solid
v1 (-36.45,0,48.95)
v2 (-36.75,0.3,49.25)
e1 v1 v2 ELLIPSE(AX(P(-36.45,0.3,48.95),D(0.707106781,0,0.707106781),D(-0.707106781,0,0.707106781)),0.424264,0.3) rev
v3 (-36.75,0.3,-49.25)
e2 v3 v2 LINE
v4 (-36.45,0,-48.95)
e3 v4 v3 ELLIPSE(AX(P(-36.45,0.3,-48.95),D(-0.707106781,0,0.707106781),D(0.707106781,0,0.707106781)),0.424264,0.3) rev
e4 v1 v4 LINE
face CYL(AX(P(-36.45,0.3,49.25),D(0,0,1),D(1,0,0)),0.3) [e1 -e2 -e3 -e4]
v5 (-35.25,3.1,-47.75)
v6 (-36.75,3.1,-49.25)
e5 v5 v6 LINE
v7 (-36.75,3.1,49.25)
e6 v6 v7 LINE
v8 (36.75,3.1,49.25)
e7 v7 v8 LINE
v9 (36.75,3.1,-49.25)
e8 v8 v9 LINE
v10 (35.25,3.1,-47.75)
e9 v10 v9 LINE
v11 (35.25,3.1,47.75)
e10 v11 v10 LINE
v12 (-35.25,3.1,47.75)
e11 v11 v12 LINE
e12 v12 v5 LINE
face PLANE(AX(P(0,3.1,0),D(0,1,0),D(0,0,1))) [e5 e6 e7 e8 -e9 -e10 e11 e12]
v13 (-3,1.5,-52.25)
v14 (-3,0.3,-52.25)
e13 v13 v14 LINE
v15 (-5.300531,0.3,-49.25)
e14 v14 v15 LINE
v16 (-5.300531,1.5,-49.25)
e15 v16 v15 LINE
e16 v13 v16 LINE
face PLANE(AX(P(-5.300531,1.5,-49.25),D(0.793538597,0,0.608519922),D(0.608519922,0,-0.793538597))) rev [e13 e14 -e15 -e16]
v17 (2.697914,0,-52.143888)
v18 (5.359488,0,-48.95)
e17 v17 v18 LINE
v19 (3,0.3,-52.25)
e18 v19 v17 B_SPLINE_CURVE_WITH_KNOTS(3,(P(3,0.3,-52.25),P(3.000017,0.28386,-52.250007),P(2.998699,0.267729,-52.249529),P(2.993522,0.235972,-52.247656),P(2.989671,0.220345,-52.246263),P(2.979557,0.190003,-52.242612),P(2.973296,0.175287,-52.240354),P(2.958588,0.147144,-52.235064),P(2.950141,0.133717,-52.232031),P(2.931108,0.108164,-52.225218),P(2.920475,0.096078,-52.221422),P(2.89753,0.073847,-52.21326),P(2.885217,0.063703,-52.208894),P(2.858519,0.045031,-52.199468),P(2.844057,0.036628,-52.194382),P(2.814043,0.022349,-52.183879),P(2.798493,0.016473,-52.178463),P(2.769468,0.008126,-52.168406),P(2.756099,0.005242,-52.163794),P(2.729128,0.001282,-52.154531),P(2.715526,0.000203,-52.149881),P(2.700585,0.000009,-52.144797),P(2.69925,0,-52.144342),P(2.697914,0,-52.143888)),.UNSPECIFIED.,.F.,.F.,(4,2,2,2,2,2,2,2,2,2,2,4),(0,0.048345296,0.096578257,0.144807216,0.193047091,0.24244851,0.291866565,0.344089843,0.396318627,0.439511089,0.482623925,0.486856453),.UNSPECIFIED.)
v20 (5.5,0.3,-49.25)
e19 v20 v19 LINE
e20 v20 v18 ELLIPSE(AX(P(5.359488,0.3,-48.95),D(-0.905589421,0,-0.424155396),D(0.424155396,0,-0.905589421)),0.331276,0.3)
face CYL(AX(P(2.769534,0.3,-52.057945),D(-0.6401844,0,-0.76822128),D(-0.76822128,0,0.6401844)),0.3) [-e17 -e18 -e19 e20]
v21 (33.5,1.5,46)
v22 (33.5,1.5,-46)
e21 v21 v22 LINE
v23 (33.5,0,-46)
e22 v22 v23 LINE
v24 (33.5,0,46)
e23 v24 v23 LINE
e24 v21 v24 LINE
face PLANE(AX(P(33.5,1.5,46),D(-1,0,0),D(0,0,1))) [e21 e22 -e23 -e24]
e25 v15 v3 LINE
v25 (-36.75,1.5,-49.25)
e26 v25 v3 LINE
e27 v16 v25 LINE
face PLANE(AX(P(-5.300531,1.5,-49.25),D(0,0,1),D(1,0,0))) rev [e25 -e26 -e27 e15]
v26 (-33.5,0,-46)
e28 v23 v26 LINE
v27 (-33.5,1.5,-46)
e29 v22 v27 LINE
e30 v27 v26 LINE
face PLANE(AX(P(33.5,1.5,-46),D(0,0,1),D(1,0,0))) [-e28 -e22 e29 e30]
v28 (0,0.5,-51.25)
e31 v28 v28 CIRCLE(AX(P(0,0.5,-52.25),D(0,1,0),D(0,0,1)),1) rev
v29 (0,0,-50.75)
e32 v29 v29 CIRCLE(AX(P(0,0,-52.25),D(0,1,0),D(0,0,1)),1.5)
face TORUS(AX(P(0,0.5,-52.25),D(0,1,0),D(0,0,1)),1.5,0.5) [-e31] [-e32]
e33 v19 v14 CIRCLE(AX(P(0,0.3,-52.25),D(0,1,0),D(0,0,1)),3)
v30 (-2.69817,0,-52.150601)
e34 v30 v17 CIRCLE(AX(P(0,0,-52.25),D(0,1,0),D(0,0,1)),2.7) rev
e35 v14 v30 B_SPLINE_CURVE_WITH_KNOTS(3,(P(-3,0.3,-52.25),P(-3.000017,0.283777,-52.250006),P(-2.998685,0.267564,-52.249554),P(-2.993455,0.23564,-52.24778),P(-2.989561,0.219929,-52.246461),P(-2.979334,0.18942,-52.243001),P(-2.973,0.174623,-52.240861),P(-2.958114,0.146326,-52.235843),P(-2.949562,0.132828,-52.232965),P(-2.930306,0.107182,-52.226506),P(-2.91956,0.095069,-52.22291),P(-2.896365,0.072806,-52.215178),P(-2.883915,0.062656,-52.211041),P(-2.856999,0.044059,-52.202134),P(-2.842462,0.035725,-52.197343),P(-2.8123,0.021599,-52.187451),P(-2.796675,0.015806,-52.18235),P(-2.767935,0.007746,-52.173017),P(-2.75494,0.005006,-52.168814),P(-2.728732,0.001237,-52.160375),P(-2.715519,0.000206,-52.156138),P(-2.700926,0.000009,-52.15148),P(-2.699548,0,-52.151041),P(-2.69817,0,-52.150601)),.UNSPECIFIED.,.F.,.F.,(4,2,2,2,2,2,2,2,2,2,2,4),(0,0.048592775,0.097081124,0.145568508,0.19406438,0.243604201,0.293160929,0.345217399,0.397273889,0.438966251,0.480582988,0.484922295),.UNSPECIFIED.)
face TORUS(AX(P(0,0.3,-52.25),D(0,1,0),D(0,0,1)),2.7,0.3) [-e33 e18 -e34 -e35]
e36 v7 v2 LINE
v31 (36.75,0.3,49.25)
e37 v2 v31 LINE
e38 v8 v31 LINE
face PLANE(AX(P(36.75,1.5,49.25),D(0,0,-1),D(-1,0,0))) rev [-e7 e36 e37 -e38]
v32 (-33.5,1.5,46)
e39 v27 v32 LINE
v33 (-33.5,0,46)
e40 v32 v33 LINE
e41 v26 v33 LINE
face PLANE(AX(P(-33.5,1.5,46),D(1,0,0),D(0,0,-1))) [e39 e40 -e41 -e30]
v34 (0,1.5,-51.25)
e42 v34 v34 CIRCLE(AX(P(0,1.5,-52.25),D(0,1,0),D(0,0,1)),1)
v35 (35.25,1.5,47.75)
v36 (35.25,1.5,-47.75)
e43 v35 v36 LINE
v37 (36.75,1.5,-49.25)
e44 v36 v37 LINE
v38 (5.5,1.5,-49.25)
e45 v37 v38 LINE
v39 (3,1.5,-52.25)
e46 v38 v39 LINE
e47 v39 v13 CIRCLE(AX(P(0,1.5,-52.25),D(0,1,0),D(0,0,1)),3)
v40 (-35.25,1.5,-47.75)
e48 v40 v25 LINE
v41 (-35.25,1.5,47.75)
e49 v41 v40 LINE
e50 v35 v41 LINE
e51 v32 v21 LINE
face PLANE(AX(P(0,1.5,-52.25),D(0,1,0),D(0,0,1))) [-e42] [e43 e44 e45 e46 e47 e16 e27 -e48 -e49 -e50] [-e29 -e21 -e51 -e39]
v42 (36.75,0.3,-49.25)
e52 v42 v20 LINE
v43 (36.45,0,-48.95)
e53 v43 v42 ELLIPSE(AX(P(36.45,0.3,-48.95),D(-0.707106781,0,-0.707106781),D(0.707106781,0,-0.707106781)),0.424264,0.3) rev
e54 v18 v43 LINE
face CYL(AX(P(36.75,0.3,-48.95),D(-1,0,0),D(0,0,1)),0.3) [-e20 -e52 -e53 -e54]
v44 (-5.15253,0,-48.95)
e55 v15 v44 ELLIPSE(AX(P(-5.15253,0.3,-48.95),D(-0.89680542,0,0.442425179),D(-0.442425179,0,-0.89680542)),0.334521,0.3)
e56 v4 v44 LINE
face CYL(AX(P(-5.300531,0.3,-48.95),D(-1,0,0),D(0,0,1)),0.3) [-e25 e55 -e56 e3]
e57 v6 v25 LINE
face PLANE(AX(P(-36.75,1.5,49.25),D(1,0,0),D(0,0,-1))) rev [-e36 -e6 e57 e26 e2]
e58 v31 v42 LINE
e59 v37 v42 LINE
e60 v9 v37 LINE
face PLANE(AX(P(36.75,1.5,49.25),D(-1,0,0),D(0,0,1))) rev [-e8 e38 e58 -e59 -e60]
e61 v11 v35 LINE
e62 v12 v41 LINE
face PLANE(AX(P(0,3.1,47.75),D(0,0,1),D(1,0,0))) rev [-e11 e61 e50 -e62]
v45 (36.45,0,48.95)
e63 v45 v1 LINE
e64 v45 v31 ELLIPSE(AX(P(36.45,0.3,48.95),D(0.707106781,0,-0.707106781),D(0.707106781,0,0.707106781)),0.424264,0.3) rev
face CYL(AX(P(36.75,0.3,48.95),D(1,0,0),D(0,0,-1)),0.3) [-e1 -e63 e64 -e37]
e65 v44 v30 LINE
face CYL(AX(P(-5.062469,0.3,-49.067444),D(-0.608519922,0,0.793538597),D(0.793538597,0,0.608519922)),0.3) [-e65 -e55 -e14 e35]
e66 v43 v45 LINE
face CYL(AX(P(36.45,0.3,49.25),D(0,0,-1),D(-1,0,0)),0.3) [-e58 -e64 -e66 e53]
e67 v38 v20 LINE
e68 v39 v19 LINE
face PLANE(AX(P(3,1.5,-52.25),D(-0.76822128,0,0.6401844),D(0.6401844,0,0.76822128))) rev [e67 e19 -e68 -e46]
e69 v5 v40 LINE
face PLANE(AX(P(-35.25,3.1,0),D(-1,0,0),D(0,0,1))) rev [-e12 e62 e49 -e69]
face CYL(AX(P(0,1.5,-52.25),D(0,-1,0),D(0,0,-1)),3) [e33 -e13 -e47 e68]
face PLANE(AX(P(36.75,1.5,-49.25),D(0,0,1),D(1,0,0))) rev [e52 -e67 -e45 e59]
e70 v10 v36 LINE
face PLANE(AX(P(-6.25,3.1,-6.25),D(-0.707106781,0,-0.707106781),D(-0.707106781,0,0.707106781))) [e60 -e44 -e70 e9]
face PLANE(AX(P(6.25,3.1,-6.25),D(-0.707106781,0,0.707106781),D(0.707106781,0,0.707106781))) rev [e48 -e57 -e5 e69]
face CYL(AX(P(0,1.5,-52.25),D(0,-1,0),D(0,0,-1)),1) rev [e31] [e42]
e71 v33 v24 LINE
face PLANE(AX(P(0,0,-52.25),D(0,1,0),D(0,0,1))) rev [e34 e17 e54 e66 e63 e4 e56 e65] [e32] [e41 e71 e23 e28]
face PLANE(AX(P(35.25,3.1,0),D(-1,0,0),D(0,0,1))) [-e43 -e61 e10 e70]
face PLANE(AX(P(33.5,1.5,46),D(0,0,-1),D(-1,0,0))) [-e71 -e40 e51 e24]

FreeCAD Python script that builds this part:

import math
import FreeCAD as App
import Part
import Sketcher

V = App.Vector


def edges_at(feature, points):
    """Names of the edges that pass closest to the given points."""
    edges = feature.Shape.Edges
    near = lambda p: min(range(len(edges)), key=lambda i: edges[i].distToShape(Part.Vertex(*p))[0])
    return sorted({f"Edge{near(p) + 1}" for p in points})

doc = App.newDocument("Part")
body = doc.addObject("PartDesign::Body", "Body")

# Sketch on XZ plane
sketch1 = body.newObject("Sketcher::SketchObject", "Sketch")
sketch1.AttachmentSupport = (doc.getObject("XZ_Plane"), [""])
sketch1.MapMode = "FlatFace"
sketch1.addGeometry([
    Part.LineSegment(V(36.75, -49.25, 0), V(5.5, -49.25, 0)),  # 0
    Part.LineSegment(V(5.5, -49.25, 0), V(3, -52.25, 0)),  # 1
    Part.ArcOfCircle(Part.Circle(V(0, -52.25, 0), V(0, 0, 1), 3), math.radians(180), math.radians(360)),  # 2
    Part.LineSegment(V(-3, -52.25, 0), V(-5.300531, -49.25, 0)),  # 3
    Part.LineSegment(V(-5.300531, -49.25, 0), V(-36.75, -49.25, 0)),  # 4
    Part.LineSegment(V(-36.75, -49.25, 0), V(-36.75, 49.25, 0)),  # 5
    Part.LineSegment(V(-36.75, 49.25, 0), V(36.75, 49.25, 0)),  # 6
    Part.LineSegment(V(36.75, 49.25, 0), V(36.75, -49.25, 0)),  # 7
    Part.LineSegment(V(33.5, 46, 0), V(-33.5, 46, 0)),  # 8
    Part.LineSegment(V(-33.5, 46, 0), V(-33.5, -46, 0)),  # 9
    Part.LineSegment(V(-33.5, -46, 0), V(33.5, -46, 0)),  # 10
    Part.LineSegment(V(33.5, -46, 0), V(33.5, 46, 0)),  # 11
    Part.Circle(V(0, -52.25, 0), V(0, 0, 1), 1),  # 12
], False)
sketch1.addConstraint([
    Sketcher.Constraint("Coincident", 0, 2, 1, 1),
    Sketcher.Constraint("Coincident", 1, 2, 2, 2),
    Sketcher.Constraint("Coincident", 2, 1, 3, 1),
    Sketcher.Constraint("Coincident", 3, 2, 4, 1),
    Sketcher.Constraint("Coincident", 4, 2, 5, 1),
    Sketcher.Constraint("Coincident", 5, 2, 6, 1),
    Sketcher.Constraint("Coincident", 6, 2, 7, 1),
    Sketcher.Constraint("Coincident", 7, 2, 0, 1),
    Sketcher.Constraint("Coincident", 8, 2, 9, 1),
    Sketcher.Constraint("Coincident", 9, 2, 10, 1),
    Sketcher.Constraint("Coincident", 10, 2, 11, 1),
    Sketcher.Constraint("Coincident", 11, 2, 8, 1),
    Sketcher.Constraint("Horizontal", 0),
    Sketcher.Constraint("Horizontal", 4),
    Sketcher.Constraint("Vertical", 5),
    Sketcher.Constraint("Horizontal", 6),
    Sketcher.Constraint("Vertical", 7),
    Sketcher.Constraint("Horizontal", 8),
    Sketcher.Constraint("Vertical", 9),
    Sketcher.Constraint("Horizontal", 10),
    Sketcher.Constraint("Vertical", 11),
    Sketcher.Constraint("Coincident", 12, 3, 2, 3),
    Sketcher.Constraint("Symmetric", 4, 2, 6, 2, -1, 1),
    Sketcher.Constraint("Symmetric", 8, 2, 10, 2, -1, 1),
    Sketcher.Constraint("Symmetric", 1, 2, 2, 1, -2),
    Sketcher.Constraint("Horizontal", 12, 3, 1, 2),
    Sketcher.Constraint("Horizontal", 0, 2, 3, 2),
    Sketcher.Constraint("Diameter", 12, 2.0),
    Sketcher.Constraint("Radius", 2, 3.0),
    Sketcher.Constraint("DistanceX", 8, 2, 8, 1, 67.0),
    Sketcher.Constraint("DistanceY", 9, 2, 9, 1, 92.0),
    Sketcher.Constraint("DistanceX", 6, 1, 6, 2, 73.5),
    Sketcher.Constraint("DistanceY", 5, 1, 5, 2, 98.5),
    Sketcher.Constraint("DistanceY", 2, 3, 0, 2, 3.0),
    Sketcher.Constraint("DistanceX", 0, 2, 10, 2, 28.0),
    Sketcher.Constraint("DistanceX", 4, 2, 4, 1, 31.449469),
])
pad1 = body.newObject("PartDesign::Pad", "Pad")
pad1.Profile = sketch1
pad1.Length = 1.5
pad1.Reversed = True

# Sketch on XZ plane
sketch2 = body.newObject("Sketcher::SketchObject", "Sketch001")
sketch2.AttachmentSupport = (doc.getObject("XZ_Plane"), [""])
sketch2.MapMode = "FlatFace"
sketch2.AttachmentOffset = App.Placement(V(0, 0, -1.5), App.Rotation())
sketch2.addGeometry([
    Part.LineSegment(V(36.75, -49.25, 0), V(35.25, -47.75, 0)),  # 0
    Part.LineSegment(V(35.25, -47.75, 0), V(35.25, 47.75, 0)),  # 1
    Part.LineSegment(V(35.25, 47.75, 0), V(-35.25, 47.75, 0)),  # 2
    Part.LineSegment(V(-35.25, 47.75, 0), V(-35.25, -47.75, 0)),  # 3
    Part.LineSegment(V(-35.25, -47.75, 0), V(-36.75, -49.25, 0)),  # 4
    Part.LineSegment(V(-36.75, -49.25, 0), V(-36.75, 49.25, 0)),  # 5
    Part.LineSegment(V(-36.75, 49.25, 0), V(36.75, 49.25, 0)),  # 6
    Part.LineSegment(V(36.75, 49.25, 0), V(36.75, -49.25, 0)),  # 7
], False)
sketch2.addConstraint([
    Sketcher.Constraint("Coincident", 0, 2, 1, 1),
    Sketcher.Constraint("Coincident", 1, 2, 2, 1),
    Sketcher.Constraint("Coincident", 2, 2, 3, 1),
    Sketcher.Constraint("Coincident", 3, 2, 4, 1),
    Sketcher.Constraint("Coincident", 4, 2, 5, 1),
    Sketcher.Constraint("Coincident", 5, 2, 6, 1),
    Sketcher.Constraint("Coincident", 6, 2, 7, 1),
    Sketcher.Constraint("Coincident", 7, 2, 0, 1),
    Sketcher.Constraint("Vertical", 1),
    Sketcher.Constraint("Horizontal", 2),
    Sketcher.Constraint("Vertical", 3),
    Sketcher.Constraint("Vertical", 5),
    Sketcher.Constraint("Horizontal", 6),
    Sketcher.Constraint("Vertical", 7),
    Sketcher.Constraint("Symmetric", 0, 2, 2, 2, -1, 1),
    Sketcher.Constraint("Symmetric", 4, 2, 6, 2, -1, 1),
    Sketcher.Constraint("Perpendicular", 0, 4),
    Sketcher.Constraint("Horizontal", 0, 2, 3, 2),
    Sketcher.Constraint("Horizontal", 4, 2, 7, 2),
    Sketcher.Constraint("DistanceX", 2, 2, 2, 1, 70.5),
    Sketcher.Constraint("DistanceX", 6, 1, 6, 2, 73.5),
    Sketcher.Constraint("DistanceY", 1, 1, 1, 2, 95.5),
])
pad2 = body.newObject("PartDesign::Pad", "Pad001")
pad2.Profile = sketch2
pad2.Length = 1.6
pad2.Reversed = True
doc.recompute()

fillet = body.newObject("PartDesign::Fillet", "Fillet")
fillet.Base = (pad2, edges_at(pad2, [
    (21.125, 0, -49.25),
    (36.75, 0, 0),
    (0, 0, 49.25),
    (-36.75, 0, 0),
    (-21.025, 0, -49.25),
    (-4.15, 0, -50.75),
    (0, 0, -55.25),
    (4.25, 0, -50.75),
]))
fillet.Radius = 0.3
doc.recompute()

fillet2 = body.newObject("PartDesign::Fillet", "Fillet001")
fillet2.Base = (fillet, edges_at(fillet, [(0, 0, -53.25)]))
fillet2.Radius = 0.5

doc.recompute()
